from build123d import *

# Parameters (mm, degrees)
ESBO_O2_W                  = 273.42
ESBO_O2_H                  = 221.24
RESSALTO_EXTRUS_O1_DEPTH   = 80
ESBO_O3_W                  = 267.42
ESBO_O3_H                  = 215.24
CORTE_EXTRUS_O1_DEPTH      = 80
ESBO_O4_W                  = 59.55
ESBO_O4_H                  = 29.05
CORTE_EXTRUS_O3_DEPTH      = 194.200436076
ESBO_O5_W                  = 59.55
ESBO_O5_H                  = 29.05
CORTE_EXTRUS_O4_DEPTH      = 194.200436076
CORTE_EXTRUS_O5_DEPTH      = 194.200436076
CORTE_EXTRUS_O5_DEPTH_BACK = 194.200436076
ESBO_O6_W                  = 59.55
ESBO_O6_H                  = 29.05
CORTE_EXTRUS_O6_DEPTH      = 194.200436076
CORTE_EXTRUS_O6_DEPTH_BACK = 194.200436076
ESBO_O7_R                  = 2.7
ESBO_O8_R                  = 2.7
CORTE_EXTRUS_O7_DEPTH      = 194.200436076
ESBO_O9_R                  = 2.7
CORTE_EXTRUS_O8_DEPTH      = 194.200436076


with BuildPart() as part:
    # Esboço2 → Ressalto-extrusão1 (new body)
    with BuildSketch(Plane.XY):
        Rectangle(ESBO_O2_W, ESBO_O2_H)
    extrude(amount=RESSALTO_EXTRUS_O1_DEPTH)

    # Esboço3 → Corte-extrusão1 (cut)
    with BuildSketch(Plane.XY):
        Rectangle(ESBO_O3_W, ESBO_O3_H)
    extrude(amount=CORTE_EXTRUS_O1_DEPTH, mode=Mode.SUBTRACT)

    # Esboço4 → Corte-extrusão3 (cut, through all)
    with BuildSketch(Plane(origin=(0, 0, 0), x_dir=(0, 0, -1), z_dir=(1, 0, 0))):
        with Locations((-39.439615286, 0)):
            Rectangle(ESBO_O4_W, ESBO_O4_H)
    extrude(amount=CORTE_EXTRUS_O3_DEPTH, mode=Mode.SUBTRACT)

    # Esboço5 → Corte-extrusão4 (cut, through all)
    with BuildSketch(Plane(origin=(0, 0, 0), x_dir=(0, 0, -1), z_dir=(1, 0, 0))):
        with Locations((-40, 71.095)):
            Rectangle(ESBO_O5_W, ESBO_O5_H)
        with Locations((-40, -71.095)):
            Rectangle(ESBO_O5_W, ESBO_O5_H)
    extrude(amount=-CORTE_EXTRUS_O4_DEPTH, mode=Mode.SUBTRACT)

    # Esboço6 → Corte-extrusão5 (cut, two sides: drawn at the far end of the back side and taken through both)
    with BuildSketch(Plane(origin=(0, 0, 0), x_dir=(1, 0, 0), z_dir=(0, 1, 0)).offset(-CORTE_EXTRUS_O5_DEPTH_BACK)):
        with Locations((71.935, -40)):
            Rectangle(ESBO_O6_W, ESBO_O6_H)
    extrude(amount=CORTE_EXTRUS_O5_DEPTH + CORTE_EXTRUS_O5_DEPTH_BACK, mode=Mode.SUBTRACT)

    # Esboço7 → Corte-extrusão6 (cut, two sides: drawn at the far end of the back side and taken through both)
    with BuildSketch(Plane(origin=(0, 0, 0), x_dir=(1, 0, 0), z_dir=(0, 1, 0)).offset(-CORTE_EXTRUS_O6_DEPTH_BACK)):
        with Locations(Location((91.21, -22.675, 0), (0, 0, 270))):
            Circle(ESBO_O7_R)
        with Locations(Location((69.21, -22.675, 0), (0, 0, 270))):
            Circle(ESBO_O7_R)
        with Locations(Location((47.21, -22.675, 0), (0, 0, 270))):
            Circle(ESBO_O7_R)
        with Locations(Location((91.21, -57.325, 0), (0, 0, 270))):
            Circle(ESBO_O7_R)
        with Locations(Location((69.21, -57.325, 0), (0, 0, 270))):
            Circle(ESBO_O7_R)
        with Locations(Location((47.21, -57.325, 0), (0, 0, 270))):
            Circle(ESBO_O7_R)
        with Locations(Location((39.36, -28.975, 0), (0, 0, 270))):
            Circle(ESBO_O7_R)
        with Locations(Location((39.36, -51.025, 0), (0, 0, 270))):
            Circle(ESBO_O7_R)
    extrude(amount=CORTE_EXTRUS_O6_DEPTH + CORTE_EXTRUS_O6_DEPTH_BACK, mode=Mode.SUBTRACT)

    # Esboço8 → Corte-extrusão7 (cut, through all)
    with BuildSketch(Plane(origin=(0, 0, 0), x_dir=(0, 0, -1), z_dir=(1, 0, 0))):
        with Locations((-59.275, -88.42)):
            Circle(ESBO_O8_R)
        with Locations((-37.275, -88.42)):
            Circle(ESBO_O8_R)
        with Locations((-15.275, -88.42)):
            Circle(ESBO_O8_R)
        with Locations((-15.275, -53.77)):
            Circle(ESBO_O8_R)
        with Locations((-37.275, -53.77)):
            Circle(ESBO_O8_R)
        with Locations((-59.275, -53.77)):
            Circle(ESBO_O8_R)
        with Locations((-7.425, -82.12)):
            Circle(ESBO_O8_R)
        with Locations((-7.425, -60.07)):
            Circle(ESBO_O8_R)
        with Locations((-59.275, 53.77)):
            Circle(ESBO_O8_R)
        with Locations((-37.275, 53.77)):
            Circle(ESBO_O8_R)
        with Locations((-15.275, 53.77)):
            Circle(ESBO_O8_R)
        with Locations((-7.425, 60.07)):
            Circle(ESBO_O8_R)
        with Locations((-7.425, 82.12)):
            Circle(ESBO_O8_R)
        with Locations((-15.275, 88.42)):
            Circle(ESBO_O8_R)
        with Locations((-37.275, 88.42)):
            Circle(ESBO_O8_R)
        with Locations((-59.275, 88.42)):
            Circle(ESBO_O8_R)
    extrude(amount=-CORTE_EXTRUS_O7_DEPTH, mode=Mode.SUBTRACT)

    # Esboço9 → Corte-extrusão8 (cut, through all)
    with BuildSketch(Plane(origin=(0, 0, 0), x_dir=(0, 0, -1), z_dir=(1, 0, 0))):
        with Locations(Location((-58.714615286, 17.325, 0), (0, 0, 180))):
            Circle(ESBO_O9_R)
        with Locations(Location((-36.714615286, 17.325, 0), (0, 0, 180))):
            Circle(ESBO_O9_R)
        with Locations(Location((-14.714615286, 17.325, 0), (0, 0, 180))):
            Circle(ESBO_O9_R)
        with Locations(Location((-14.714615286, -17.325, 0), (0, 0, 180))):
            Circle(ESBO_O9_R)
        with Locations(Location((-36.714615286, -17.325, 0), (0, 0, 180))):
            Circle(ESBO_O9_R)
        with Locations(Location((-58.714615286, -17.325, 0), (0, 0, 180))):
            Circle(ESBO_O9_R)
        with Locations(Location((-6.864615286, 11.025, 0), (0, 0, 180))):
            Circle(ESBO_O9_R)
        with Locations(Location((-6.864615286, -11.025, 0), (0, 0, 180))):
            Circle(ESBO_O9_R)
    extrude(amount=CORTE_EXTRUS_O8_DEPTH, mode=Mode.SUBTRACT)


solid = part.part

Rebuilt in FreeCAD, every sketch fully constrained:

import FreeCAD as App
import Part
import Sketcher

doc = App.newDocument("Part")
params = doc.addObject("Spreadsheet::Sheet", "Params")
for row, (alias, value) in enumerate([
    ("sketch1_width", "273.42 mm"),
    ("sketch1_height", "221.24 mm"),
    ("pad1_length", "80 mm"),
    ("sketch2_width", "267.42 mm"),
    ("sketch2_height", "215.24 mm"),
    ("pocket1_length", "80 mm"),
    ("sketch3_width", "29.05 mm"),
    ("sketch3_height", "59.55 mm"),
    ("sketch4_width", "29.05 mm"),
    ("sketch4_height", "59.55 mm"),
    ("sketch5_width", "59.55 mm"),
    ("sketch5_height", "29.05 mm"),
    ("sketch6_diameter", "5.4 mm"),
    ("sketch7_diameter", "5.4 mm"),
    ("sketch8_diameter", "5.4 mm"),
], start=1):
    params.set(f"A{row}", alias)
    params.set(f"B{row}", "=" + value)
    params.setAlias(f"B{row}", alias)

body = doc.addObject("PartDesign::Body", "Body")

# Sketch on XY plane
sketch1 = body.newObject("Sketcher::SketchObject", "Sketch")
sketch1.AttachmentSupport = (doc.getObject("XY_Plane"), [""])
sketch1.MapMode = "FlatFace"
sketch1.addGeometry([
    Part.LineSegment(App.Vector(-137, 111, 0), App.Vector(-137, -111, 0)),
    Part.LineSegment(App.Vector(-137, -111, 0), App.Vector(137, -111, 0)),
    Part.LineSegment(App.Vector(137, -111, 0), App.Vector(137, 111, 0)),
    Part.LineSegment(App.Vector(137, 111, 0), App.Vector(-137, 111, 0)),
], False)
sketch1.addConstraint([
    Sketcher.Constraint("Coincident", 0, 2, 1, 1),
    Sketcher.Constraint("Coincident", 1, 2, 2, 1),
    Sketcher.Constraint("Coincident", 2, 2, 3, 1),
    Sketcher.Constraint("Coincident", 3, 2, 0, 1),
    Sketcher.Constraint("Vertical", 0),
    Sketcher.Constraint("Horizontal", 1),
    Sketcher.Constraint("Vertical", 2),
    Sketcher.Constraint("Horizontal", 3),
    Sketcher.Constraint("Symmetric", 0, 2, 2, 2, -1, 1),
    Sketcher.Constraint("DistanceX", 1, 1, 1, 2, 273.42),
    Sketcher.Constraint("DistanceY", 0, 2, 0, 1, 221.24),
])
sketch1.setExpression("Constraints[9]", "Params.sketch1_width")
sketch1.setExpression("Constraints[10]", "Params.sketch1_height")
pad1 = body.newObject("PartDesign::Pad", "Pad")
pad1.Profile = sketch1
pad1.setExpression("Length", "Params.pad1_length")

# Sketch on XY plane
sketch2 = body.newObject("Sketcher::SketchObject", "Sketch001")
sketch2.AttachmentSupport = (doc.getObject("XY_Plane"), [""])
sketch2.MapMode = "FlatFace"
sketch2.addGeometry([
    Part.LineSegment(App.Vector(-134, 108, 0), App.Vector(-134, -108, 0)),
    Part.LineSegment(App.Vector(-134, -108, 0), App.Vector(134, -108, 0)),
    Part.LineSegment(App.Vector(134, -108, 0), App.Vector(134, 108, 0)),
    Part.LineSegment(App.Vector(134, 108, 0), App.Vector(-134, 108, 0)),
], False)
sketch2.addConstraint([
    Sketcher.Constraint("Coincident", 0, 2, 1, 1),
    Sketcher.Constraint("Coincident", 1, 2, 2, 1),
    Sketcher.Constraint("Coincident", 2, 2, 3, 1),
    Sketcher.Constraint("Coincident", 3, 2, 0, 1),
    Sketcher.Constraint("Vertical", 0),
    Sketcher.Constraint("Horizontal", 1),
    Sketcher.Constraint("Vertical", 2),
    Sketcher.Constraint("Horizontal", 3),
    Sketcher.Constraint("Symmetric", 0, 2, 2, 2, -1, 1),
    Sketcher.Constraint("DistanceX", 1, 1, 1, 2, 267.42),
    Sketcher.Constraint("DistanceY", 0, 2, 0, 1, 215.24),
])
sketch2.setExpression("Constraints[9]", "Params.sketch2_width")
sketch2.setExpression("Constraints[10]", "Params.sketch2_height")
pocket1 = body.newObject("PartDesign::Pocket", "Pocket")
pocket1.Profile = sketch2
pocket1.setExpression("Length", "Params.pocket1_length")
pocket1.Reversed = True

# Sketch on YZ plane
sketch3 = body.newObject("Sketcher::SketchObject", "Sketch002")
sketch3.AttachmentSupport = (doc.getObject("YZ_Plane"), [""])
sketch3.MapMode = "FlatFace"
sketch3.addGeometry([
    Part.LineSegment(App.Vector(15, 69, 0), App.Vector(-15, 69, 0)),
    Part.LineSegment(App.Vector(-15, 69, 0), App.Vector(-15, 10, 0)),
    Part.LineSegment(App.Vector(-15, 10, 0), App.Vector(15, 10, 0)),
    Part.LineSegment(App.Vector(15, 10, 0), App.Vector(15, 69, 0)),
], False)
sketch3.addConstraint([
    Sketcher.Constraint("Coincident", 0, 2, 1, 1),
    Sketcher.Constraint("Coincident", 1, 2, 2, 1),
    Sketcher.Constraint("Coincident", 2, 2, 3, 1),
    Sketcher.Constraint("Coincident", 3, 2, 0, 1),
    Sketcher.Constraint("Horizontal", 0),
    Sketcher.Constraint("Vertical", 1),
    Sketcher.Constraint("Horizontal", 2),
    Sketcher.Constraint("Vertical", 3),
    Sketcher.Constraint("DistanceX", 0, 2, 0, 1, 29.05),
    Sketcher.Constraint("DistanceY", 1, 2, 1, 1, 59.55),
    Sketcher.Constraint("DistanceX", 0, 2, -1, 1, 14.525),
    Sketcher.Constraint("DistanceY", -1, 1, 0, 2, 69.214615),
])
sketch3.setExpression("Constraints[8]", "Params.sketch3_width")
sketch3.setExpression("Constraints[9]", "Params.sketch3_height")
pocket2 = body.newObject("PartDesign::Pocket", "Pocket001")
pocket2.Profile = sketch3
pocket2.Type = "ThroughAll"
pocket2.Reversed = True

# Sketch on YZ plane
sketch4 = body.newObject("Sketcher::SketchObject", "Sketch003")
sketch4.AttachmentSupport = (doc.getObject("YZ_Plane"), [""])
sketch4.MapMode = "FlatFace"
sketch4.addGeometry([
    Part.LineSegment(App.Vector(86, 70, 0), App.Vector(57, 70, 0)),  # 0
    Part.LineSegment(App.Vector(57, 70, 0), App.Vector(57, 10, 0)),  # 1
    Part.LineSegment(App.Vector(57, 10, 0), App.Vector(86, 10, 0)),  # 2
    Part.LineSegment(App.Vector(86, 10, 0), App.Vector(86, 70, 0)),  # 3
    Part.LineSegment(App.Vector(-57, 70, 0), App.Vector(-86, 70, 0)),  # 4
    Part.LineSegment(App.Vector(-86, 70, 0), App.Vector(-86, 10, 0)),  # 5
    Part.LineSegment(App.Vector(-86, 10, 0), App.Vector(-57, 10, 0)),  # 6
    Part.LineSegment(App.Vector(-57, 10, 0), App.Vector(-57, 70, 0)),  # 7
], False)
sketch4.addConstraint([
    Sketcher.Constraint("Coincident", 0, 2, 1, 1),
    Sketcher.Constraint("Coincident", 1, 2, 2, 1),
    Sketcher.Constraint("Coincident", 2, 2, 3, 1),
    Sketcher.Constraint("Coincident", 3, 2, 0, 1),
    Sketcher.Constraint("Coincident", 4, 2, 5, 1),
    Sketcher.Constraint("Coincident", 5, 2, 6, 1),
    Sketcher.Constraint("Coincident", 6, 2, 7, 1),
    Sketcher.Constraint("Coincident", 7, 2, 4, 1),
    Sketcher.Constraint("Horizontal", 0),
    Sketcher.Constraint("Vertical", 1),
    Sketcher.Constraint("Horizontal", 2),
    Sketcher.Constraint("Vertical", 3),
    Sketcher.Constraint("Horizontal", 4),
    Sketcher.Constraint("Vertical", 5),
    Sketcher.Constraint("Horizontal", 6),
    Sketcher.Constraint("Vertical", 7),
    Sketcher.Constraint("Symmetric", 3, 2, 4, 2, -2),
    Sketcher.Constraint("Symmetric", 1, 2, 6, 2, -2),
    Sketcher.Constraint("DistanceX", 0, 2, 0, 1, 29.05),
    Sketcher.Constraint("DistanceY", 1, 2, 1, 1, 59.55),
    Sketcher.Constraint("DistanceX", -1, 1, 0, 2, 56.57),
    Sketcher.Constraint("DistanceY", -1, 1, 0, 2, 69.775),
])
sketch4.setExpression("Constraints[18]", "Params.sketch4_width")
sketch4.setExpression("Constraints[19]", "Params.sketch4_height")
pocket3 = body.newObject("PartDesign::Pocket", "Pocket002")
pocket3.Profile = sketch4
pocket3.Type = "ThroughAll"

# Sketch on XZ plane
sketch5 = body.newObject("Sketcher::SketchObject", "Sketch004")
sketch5.AttachmentSupport = (doc.getObject("XZ_Plane"), [""])
sketch5.MapMode = "FlatFace"
sketch5.addGeometry([
    Part.LineSegment(App.Vector(42, 25, 0), App.Vector(42, 55, 0)),
    Part.LineSegment(App.Vector(42, 55, 0), App.Vector(102, 55, 0)),
    Part.LineSegment(App.Vector(102, 55, 0), App.Vector(102, 25, 0)),
    Part.LineSegment(App.Vector(102, 25, 0), App.Vector(42, 25, 0)),
], False)
sketch5.addConstraint([
    Sketcher.Constraint("Coincident", 0, 2, 1, 1),
    Sketcher.Constraint("Coincident", 1, 2, 2, 1),
    Sketcher.Constraint("Coincident", 2, 2, 3, 1),
    Sketcher.Constraint("Coincident", 3, 2, 0, 1),
    Sketcher.Constraint("Vertical", 0),
    Sketcher.Constraint("Horizontal", 1),
    Sketcher.Constraint("Vertical", 2),
    Sketcher.Constraint("Horizontal", 3),
    Sketcher.Constraint("DistanceX", 1, 1, 1, 2, 59.55),
    Sketcher.Constraint("DistanceY", 0, 1, 0, 2, 29.05),
    Sketcher.Constraint("DistanceX", -1, 1, 0, 2, 42.16),
    Sketcher.Constraint("DistanceY", -1, 1, 0, 2, 54.525),
])
sketch5.setExpression("Constraints[8]", "Params.sketch5_width")
sketch5.setExpression("Constraints[9]", "Params.sketch5_height")
pocket4 = body.newObject("PartDesign::Pocket", "Pocket003")
pocket4.Profile = sketch5
pocket4.Type = "ThroughAll"
pocket4.Midplane = True

# Sketch on XZ plane
sketch6 = body.newObject("Sketcher::SketchObject", "Sketch005")
sketch6.AttachmentSupport = (doc.getObject("XZ_Plane"), [""])
sketch6.MapMode = "FlatFace"
sketch6.addGeometry([
    Part.Circle(App.Vector(91.2, 22.7, 0), App.Vector(0, 0, 1), 2.7),  # 0
    Part.Circle(App.Vector(69.2, 22.7, 0), App.Vector(0, 0, 1), 2.7),  # 1
    Part.Circle(App.Vector(47.2, 22.7, 0), App.Vector(0, 0, 1), 2.7),  # 2
    Part.Circle(App.Vector(91.2, 57.3, 0), App.Vector(0, 0, 1), 2.7),  # 3
    Part.Circle(App.Vector(69.2, 57.3, 0), App.Vector(0, 0, 1), 2.7),  # 4
    Part.Circle(App.Vector(47.2, 57.3, 0), App.Vector(0, 0, 1), 2.7),  # 5
    Part.Circle(App.Vector(39.4, 29, 0), App.Vector(0, 0, 1), 2.7),  # 6
    Part.Circle(App.Vector(39.4, 51, 0), App.Vector(0, 0, 1), 2.7),  # 7
], False)
sketch6.addConstraint([
    Sketcher.Constraint("Equal", 0, 1),
    Sketcher.Constraint("Equal", 1, 2),
    Sketcher.Constraint("Equal", 2, 3),
    Sketcher.Constraint("Equal", 3, 4),
    Sketcher.Constraint("Equal", 4, 5),
    Sketcher.Constraint("Equal", 5, 6),
    Sketcher.Constraint("Equal", 6, 7),
    Sketcher.Constraint("Horizontal", 0, 3, 1, 3),
    Sketcher.Constraint("Horizontal", 1, 3, 2, 3),
    Sketcher.Constraint("Horizontal", 3, 3, 4, 3),
    Sketcher.Constraint("Horizontal", 4, 3, 5, 3),
    Sketcher.Constraint("Vertical", 0, 3, 3, 3),
    Sketcher.Constraint("Vertical", 1, 3, 4, 3),
    Sketcher.Constraint("Vertical", 2, 3, 5, 3),
    Sketcher.Constraint("Vertical", 6, 3, 7, 3),
    Sketcher.Constraint("Diameter", 0, 5.4),
    Sketcher.Constraint("DistanceX", 1, 3, 0, 3, 22.0),
    Sketcher.Constraint("DistanceX", 2, 3, 1, 3, 22.0),
    Sketcher.Constraint("DistanceY", 2, 3, 6, 3, 6.3),
    Sketcher.Constraint("DistanceY", 7, 3, 5, 3, 6.3),
    Sketcher.Constraint("DistanceX", -1, 1, 0, 3, 91.21),
    Sketcher.Constraint("DistanceX", -1, 1, 6, 3, 39.36),
    Sketcher.Constraint("DistanceY", 0, 3, 3, 3, 34.65),
    Sketcher.Constraint("DistanceY", -1, 1, 0, 3, 22.675),
])
sketch6.setExpression("Constraints[15]", "Params.sketch6_diameter")
pocket5 = body.newObject("PartDesign::Pocket", "Pocket004")
pocket5.Profile = sketch6
pocket5.Type = "ThroughAll"
pocket5.Midplane = True

# Sketch on YZ plane
sketch7 = body.newObject("Sketcher::SketchObject", "Sketch006")
sketch7.AttachmentSupport = (doc.getObject("YZ_Plane"), [""])
sketch7.MapMode = "FlatFace"
sketch7.addGeometry([
    Part.Circle(App.Vector(-88.4, 59.3, 0), App.Vector(0, 0, 1), 2.7),  # 0
    Part.Circle(App.Vector(-88.4, 37.3, 0), App.Vector(0, 0, 1), 2.7),  # 1
    Part.Circle(App.Vector(-88.4, 15.3, 0), App.Vector(0, 0, 1), 2.7),  # 2
    Part.Circle(App.Vector(-53.8, 15.3, 0), App.Vector(0, 0, 1), 2.7),  # 3
    Part.Circle(App.Vector(-53.8, 37.3, 0), App.Vector(0, 0, 1), 2.7),  # 4
    Part.Circle(App.Vector(-53.8, 59.3, 0), App.Vector(0, 0, 1), 2.7),  # 5
    Part.Circle(App.Vector(-82.1, 7.4, 0), App.Vector(0, 0, 1), 2.7),  # 6
    Part.Circle(App.Vector(-60.1, 7.4, 0), App.Vector(0, 0, 1), 2.7),  # 7
    Part.Circle(App.Vector(53.8, 59.3, 0), App.Vector(0, 0, 1), 2.7),  # 8
    Part.Circle(App.Vector(53.8, 37.3, 0), App.Vector(0, 0, 1), 2.7),  # 9
    Part.Circle(App.Vector(53.8, 15.3, 0), App.Vector(0, 0, 1), 2.7),  # 10
    Part.Circle(App.Vector(60.1, 7.4, 0), App.Vector(0, 0, 1), 2.7),  # 11
    Part.Circle(App.Vector(82.1, 7.4, 0), App.Vector(0, 0, 1), 2.7),  # 12
    Part.Circle(App.Vector(88.4, 15.3, 0), App.Vector(0, 0, 1), 2.7),  # 13
    Part.Circle(App.Vector(88.4, 37.3, 0), App.Vector(0, 0, 1), 2.7),  # 14
    Part.Circle(App.Vector(88.4, 59.3, 0), App.Vector(0, 0, 1), 2.7),  # 15
], False)
sketch7.addConstraint([
    Sketcher.Constraint("Equal", 0, 1),
    Sketcher.Constraint("Equal", 1, 2),
    Sketcher.Constraint("Equal", 2, 3),
    Sketcher.Constraint("Equal", 3, 4),
    Sketcher.Constraint("Equal", 4, 5),
    Sketcher.Constraint("Equal", 5, 6),
    Sketcher.Constraint("Equal", 6, 7),
    Sketcher.Constraint("Equal", 7, 8),
    Sketcher.Constraint("Equal", 8, 9),
    Sketcher.Constraint("Equal", 9, 10),
    Sketcher.Constraint("Equal", 10, 11),
    Sketcher.Constraint("Equal", 11, 12),
    Sketcher.Constraint("Equal", 12, 13),
    Sketcher.Constraint("Equal", 13, 14),
    Sketcher.Constraint("Equal", 14, 15),
    Sketcher.Constraint("Symmetric", 5, 3, 8, 3, -2),
    Sketcher.Constraint("Symmetric", 4, 3, 9, 3, -2),
    Sketcher.Constraint("Symmetric", 3, 3, 10, 3, -2),
    Sketcher.Constraint("Symmetric", 7, 3, 11, 3, -2),
    Sketcher.Constraint("Symmetric", 6, 3, 12, 3, -2),
    Sketcher.Constraint("Symmetric", 2, 3, 13, 3, -2),
    Sketcher.Constraint("Symmetric", 1, 3, 14, 3, -2),
    Sketcher.Constraint("Symmetric", 0, 3, 15, 3, -2),
    Sketcher.Constraint("Horizontal", 2, 3, 3, 3),
    Sketcher.Constraint("Horizontal", 1, 3, 4, 3),
    Sketcher.Constraint("Horizontal", 0, 3, 5, 3),
    Sketcher.Constraint("Horizontal", 6, 3, 7, 3),
    Sketcher.Constraint("Vertical", 0, 3, 1, 3),
    Sketcher.Constraint("Vertical", 1, 3, 2, 3),
    Sketcher.Constraint("Vertical", 3, 3, 4, 3),
    Sketcher.Constraint("Vertical", 4, 3, 5, 3),
    Sketcher.Constraint("Diameter", 0, 5.4),
    Sketcher.Constraint("DistanceY", 1, 3, 0, 3, 22.0),
    Sketcher.Constraint("DistanceY", 2, 3, 1, 3, 22.0),
    Sketcher.Constraint("DistanceX", 2, 3, 6, 3, 6.3),
    Sketcher.Constraint("DistanceX", 7, 3, 3, 3, 6.3),
    Sketcher.Constraint("DistanceX", 0, 3, -1, 1, 88.42),
    Sketcher.Constraint("DistanceX", 3, 3, -1, 1, 53.77),
    Sketcher.Constraint("DistanceY", 6, 3, 2, 3, 7.85),
    Sketcher.Constraint("DistanceY", -1, 1, 0, 3, 59.275),
])
sketch7.setExpression("Constraints[31]", "Params.sketch7_diameter")
pocket6 = body.newObject("PartDesign::Pocket", "Pocket005")
pocket6.Profile = sketch7
pocket6.Type = "ThroughAll"

# Sketch on YZ plane
sketch8 = body.newObject("Sketcher::SketchObject", "Sketch007")
sketch8.AttachmentSupport = (doc.getObject("YZ_Plane"), [""])
sketch8.MapMode = "FlatFace"
sketch8.addGeometry([
    Part.Circle(App.Vector(17.3, 58.7, 0), App.Vector(0, 0, 1), 2.7),  # 0
    Part.Circle(App.Vector(17.3, 36.7, 0), App.Vector(0, 0, 1), 2.7),  # 1
    Part.Circle(App.Vector(17.3, 14.7, 0), App.Vector(0, 0, 1), 2.7),  # 2
    Part.Circle(App.Vector(-17.3, 14.7, 0), App.Vector(0, 0, 1), 2.7),  # 3
    Part.Circle(App.Vector(-17.3, 36.7, 0), App.Vector(0, 0, 1), 2.7),  # 4
    Part.Circle(App.Vector(-17.3, 58.7, 0), App.Vector(0, 0, 1), 2.7),  # 5
    Part.Circle(App.Vector(11, 6.9, 0), App.Vector(0, 0, 1), 2.7),  # 6
    Part.Circle(App.Vector(-11, 6.9, 0), App.Vector(0, 0, 1), 2.7),  # 7
], False)
sketch8.addConstraint([
    Sketcher.Constraint("Equal", 0, 1),
    Sketcher.Constraint("Equal", 1, 2),
    Sketcher.Constraint("Equal", 2, 3),
    Sketcher.Constraint("Equal", 3, 4),
    Sketcher.Constraint("Equal", 4, 5),
    Sketcher.Constraint("Equal", 5, 6),
    Sketcher.Constraint("Equal", 6, 7),
    Sketcher.Constraint("Symmetric", 2, 3, 3, 3, -2),
    Sketcher.Constraint("Symmetric", 1, 3, 4, 3, -2),
    Sketcher.Constraint("Symmetric", 0, 3, 5, 3, -2),
    Sketcher.Constraint("Symmetric", 6, 3, 7, 3, -2),
    Sketcher.Constraint("Vertical", 0, 3, 1, 3),
    Sketcher.Constraint("Vertical", 1, 3, 2, 3),
    Sketcher.Constraint("Diameter", 0, 5.4),
    Sketcher.Constraint("DistanceY", 1, 3, 0, 3, 22.0),
    Sketcher.Constraint("DistanceY", 2, 3, 1, 3, 22.0),
    Sketcher.Constraint("DistanceX", 6, 3, 2, 3, 6.3),
    Sketcher.Constraint("DistanceX", 3, 3, 2, 3, 34.65),
    Sketcher.Constraint("DistanceY", 6, 3, 2, 3, 7.85),
    Sketcher.Constraint("DistanceY", -1, 1, 0, 3, 58.714615),
])
sketch8.setExpression("Constraints[13]", "Params.sketch8_diameter")
pocket7 = body.newObject("PartDesign::Pocket", "Pocket006")
pocket7.Profile = sketch8
pocket7.Type = "ThroughAll"
pocket7.Reversed = True

doc.recompute()
